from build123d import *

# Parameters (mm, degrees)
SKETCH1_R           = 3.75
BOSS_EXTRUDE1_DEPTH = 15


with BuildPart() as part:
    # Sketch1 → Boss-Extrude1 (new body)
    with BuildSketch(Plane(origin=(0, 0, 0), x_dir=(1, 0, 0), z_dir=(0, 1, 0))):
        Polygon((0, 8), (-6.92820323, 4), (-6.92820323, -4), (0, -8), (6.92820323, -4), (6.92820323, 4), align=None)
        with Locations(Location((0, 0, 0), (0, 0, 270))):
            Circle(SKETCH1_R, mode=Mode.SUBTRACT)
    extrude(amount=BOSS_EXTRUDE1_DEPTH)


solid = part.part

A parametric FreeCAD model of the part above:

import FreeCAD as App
import Part
import Sketcher

V = App.Vector
Q = App.Units.Quantity


def add_polygon(sketch, points):
    """Adds a closed chain of lines whose ends are joined by coincident constraints."""
    first, n = sketch.GeometryCount, len(points)
    for a, b in zip(points, points[1:] + points[:1]):
        sketch.addGeometry(Part.LineSegment(App.Vector(*a, 0), App.Vector(*b, 0)), False)
    for i in range(n):
        sketch.addConstraint(Sketcher.Constraint("Coincident", first + i, 2, first + (i + 1) % n, 1))

doc = App.newDocument("Part")
body = doc.addObject("PartDesign::Body", "Body")

sketch1 = body.newObject("Sketcher::SketchObject", "Sketch")
sketch1.AttachmentSupport = (doc.getObject("XZ_Plane"), [""])
sketch1.MapMode = "FlatFace"
add_polygon(sketch1, [(0, -8), (-6.928203, -4), (-6.928203, 4), (0, 8), (6.928203, 4), (6.928203, -4)])
sketch1.addGeometry(Part.Circle(V(0, 0, 0), V(0, 0, 1), 3.75), False)
sketch1.addConstraint([
    Sketcher.Constraint("Vertical", 1),
    Sketcher.Constraint("Vertical", 4),
    Sketcher.Constraint("Coincident", 6, 3, -1, 1),
    Sketcher.Constraint("Symmetric", 0, 2, 3, 2, -1, 1),
    Sketcher.Constraint("Symmetric", 2, 2, 5, 2, -1, 1),
    Sketcher.Constraint("PointOnObject", 2, 2, -2),
    Sketcher.Constraint("Parallel", 2, 5),
    Sketcher.Constraint("Horizontal", 1, 2, 3, 2),
    Sketcher.Constraint("Diameter", 6, Q("7.5 mm")),
    Sketcher.Constraint("DistanceY", 1, 1, 1, 2, Q("8 mm")),
    Sketcher.Constraint("Angle", 0, Q("150 deg")),
    Sketcher.Constraint("Distance", 0, Q("8 mm")),
])
pad1 = body.newObject("PartDesign::Pad", "Pad")
pad1.Profile = sketch1
pad1.Length = 15
pad1.Reversed = True

doc.recompute()
